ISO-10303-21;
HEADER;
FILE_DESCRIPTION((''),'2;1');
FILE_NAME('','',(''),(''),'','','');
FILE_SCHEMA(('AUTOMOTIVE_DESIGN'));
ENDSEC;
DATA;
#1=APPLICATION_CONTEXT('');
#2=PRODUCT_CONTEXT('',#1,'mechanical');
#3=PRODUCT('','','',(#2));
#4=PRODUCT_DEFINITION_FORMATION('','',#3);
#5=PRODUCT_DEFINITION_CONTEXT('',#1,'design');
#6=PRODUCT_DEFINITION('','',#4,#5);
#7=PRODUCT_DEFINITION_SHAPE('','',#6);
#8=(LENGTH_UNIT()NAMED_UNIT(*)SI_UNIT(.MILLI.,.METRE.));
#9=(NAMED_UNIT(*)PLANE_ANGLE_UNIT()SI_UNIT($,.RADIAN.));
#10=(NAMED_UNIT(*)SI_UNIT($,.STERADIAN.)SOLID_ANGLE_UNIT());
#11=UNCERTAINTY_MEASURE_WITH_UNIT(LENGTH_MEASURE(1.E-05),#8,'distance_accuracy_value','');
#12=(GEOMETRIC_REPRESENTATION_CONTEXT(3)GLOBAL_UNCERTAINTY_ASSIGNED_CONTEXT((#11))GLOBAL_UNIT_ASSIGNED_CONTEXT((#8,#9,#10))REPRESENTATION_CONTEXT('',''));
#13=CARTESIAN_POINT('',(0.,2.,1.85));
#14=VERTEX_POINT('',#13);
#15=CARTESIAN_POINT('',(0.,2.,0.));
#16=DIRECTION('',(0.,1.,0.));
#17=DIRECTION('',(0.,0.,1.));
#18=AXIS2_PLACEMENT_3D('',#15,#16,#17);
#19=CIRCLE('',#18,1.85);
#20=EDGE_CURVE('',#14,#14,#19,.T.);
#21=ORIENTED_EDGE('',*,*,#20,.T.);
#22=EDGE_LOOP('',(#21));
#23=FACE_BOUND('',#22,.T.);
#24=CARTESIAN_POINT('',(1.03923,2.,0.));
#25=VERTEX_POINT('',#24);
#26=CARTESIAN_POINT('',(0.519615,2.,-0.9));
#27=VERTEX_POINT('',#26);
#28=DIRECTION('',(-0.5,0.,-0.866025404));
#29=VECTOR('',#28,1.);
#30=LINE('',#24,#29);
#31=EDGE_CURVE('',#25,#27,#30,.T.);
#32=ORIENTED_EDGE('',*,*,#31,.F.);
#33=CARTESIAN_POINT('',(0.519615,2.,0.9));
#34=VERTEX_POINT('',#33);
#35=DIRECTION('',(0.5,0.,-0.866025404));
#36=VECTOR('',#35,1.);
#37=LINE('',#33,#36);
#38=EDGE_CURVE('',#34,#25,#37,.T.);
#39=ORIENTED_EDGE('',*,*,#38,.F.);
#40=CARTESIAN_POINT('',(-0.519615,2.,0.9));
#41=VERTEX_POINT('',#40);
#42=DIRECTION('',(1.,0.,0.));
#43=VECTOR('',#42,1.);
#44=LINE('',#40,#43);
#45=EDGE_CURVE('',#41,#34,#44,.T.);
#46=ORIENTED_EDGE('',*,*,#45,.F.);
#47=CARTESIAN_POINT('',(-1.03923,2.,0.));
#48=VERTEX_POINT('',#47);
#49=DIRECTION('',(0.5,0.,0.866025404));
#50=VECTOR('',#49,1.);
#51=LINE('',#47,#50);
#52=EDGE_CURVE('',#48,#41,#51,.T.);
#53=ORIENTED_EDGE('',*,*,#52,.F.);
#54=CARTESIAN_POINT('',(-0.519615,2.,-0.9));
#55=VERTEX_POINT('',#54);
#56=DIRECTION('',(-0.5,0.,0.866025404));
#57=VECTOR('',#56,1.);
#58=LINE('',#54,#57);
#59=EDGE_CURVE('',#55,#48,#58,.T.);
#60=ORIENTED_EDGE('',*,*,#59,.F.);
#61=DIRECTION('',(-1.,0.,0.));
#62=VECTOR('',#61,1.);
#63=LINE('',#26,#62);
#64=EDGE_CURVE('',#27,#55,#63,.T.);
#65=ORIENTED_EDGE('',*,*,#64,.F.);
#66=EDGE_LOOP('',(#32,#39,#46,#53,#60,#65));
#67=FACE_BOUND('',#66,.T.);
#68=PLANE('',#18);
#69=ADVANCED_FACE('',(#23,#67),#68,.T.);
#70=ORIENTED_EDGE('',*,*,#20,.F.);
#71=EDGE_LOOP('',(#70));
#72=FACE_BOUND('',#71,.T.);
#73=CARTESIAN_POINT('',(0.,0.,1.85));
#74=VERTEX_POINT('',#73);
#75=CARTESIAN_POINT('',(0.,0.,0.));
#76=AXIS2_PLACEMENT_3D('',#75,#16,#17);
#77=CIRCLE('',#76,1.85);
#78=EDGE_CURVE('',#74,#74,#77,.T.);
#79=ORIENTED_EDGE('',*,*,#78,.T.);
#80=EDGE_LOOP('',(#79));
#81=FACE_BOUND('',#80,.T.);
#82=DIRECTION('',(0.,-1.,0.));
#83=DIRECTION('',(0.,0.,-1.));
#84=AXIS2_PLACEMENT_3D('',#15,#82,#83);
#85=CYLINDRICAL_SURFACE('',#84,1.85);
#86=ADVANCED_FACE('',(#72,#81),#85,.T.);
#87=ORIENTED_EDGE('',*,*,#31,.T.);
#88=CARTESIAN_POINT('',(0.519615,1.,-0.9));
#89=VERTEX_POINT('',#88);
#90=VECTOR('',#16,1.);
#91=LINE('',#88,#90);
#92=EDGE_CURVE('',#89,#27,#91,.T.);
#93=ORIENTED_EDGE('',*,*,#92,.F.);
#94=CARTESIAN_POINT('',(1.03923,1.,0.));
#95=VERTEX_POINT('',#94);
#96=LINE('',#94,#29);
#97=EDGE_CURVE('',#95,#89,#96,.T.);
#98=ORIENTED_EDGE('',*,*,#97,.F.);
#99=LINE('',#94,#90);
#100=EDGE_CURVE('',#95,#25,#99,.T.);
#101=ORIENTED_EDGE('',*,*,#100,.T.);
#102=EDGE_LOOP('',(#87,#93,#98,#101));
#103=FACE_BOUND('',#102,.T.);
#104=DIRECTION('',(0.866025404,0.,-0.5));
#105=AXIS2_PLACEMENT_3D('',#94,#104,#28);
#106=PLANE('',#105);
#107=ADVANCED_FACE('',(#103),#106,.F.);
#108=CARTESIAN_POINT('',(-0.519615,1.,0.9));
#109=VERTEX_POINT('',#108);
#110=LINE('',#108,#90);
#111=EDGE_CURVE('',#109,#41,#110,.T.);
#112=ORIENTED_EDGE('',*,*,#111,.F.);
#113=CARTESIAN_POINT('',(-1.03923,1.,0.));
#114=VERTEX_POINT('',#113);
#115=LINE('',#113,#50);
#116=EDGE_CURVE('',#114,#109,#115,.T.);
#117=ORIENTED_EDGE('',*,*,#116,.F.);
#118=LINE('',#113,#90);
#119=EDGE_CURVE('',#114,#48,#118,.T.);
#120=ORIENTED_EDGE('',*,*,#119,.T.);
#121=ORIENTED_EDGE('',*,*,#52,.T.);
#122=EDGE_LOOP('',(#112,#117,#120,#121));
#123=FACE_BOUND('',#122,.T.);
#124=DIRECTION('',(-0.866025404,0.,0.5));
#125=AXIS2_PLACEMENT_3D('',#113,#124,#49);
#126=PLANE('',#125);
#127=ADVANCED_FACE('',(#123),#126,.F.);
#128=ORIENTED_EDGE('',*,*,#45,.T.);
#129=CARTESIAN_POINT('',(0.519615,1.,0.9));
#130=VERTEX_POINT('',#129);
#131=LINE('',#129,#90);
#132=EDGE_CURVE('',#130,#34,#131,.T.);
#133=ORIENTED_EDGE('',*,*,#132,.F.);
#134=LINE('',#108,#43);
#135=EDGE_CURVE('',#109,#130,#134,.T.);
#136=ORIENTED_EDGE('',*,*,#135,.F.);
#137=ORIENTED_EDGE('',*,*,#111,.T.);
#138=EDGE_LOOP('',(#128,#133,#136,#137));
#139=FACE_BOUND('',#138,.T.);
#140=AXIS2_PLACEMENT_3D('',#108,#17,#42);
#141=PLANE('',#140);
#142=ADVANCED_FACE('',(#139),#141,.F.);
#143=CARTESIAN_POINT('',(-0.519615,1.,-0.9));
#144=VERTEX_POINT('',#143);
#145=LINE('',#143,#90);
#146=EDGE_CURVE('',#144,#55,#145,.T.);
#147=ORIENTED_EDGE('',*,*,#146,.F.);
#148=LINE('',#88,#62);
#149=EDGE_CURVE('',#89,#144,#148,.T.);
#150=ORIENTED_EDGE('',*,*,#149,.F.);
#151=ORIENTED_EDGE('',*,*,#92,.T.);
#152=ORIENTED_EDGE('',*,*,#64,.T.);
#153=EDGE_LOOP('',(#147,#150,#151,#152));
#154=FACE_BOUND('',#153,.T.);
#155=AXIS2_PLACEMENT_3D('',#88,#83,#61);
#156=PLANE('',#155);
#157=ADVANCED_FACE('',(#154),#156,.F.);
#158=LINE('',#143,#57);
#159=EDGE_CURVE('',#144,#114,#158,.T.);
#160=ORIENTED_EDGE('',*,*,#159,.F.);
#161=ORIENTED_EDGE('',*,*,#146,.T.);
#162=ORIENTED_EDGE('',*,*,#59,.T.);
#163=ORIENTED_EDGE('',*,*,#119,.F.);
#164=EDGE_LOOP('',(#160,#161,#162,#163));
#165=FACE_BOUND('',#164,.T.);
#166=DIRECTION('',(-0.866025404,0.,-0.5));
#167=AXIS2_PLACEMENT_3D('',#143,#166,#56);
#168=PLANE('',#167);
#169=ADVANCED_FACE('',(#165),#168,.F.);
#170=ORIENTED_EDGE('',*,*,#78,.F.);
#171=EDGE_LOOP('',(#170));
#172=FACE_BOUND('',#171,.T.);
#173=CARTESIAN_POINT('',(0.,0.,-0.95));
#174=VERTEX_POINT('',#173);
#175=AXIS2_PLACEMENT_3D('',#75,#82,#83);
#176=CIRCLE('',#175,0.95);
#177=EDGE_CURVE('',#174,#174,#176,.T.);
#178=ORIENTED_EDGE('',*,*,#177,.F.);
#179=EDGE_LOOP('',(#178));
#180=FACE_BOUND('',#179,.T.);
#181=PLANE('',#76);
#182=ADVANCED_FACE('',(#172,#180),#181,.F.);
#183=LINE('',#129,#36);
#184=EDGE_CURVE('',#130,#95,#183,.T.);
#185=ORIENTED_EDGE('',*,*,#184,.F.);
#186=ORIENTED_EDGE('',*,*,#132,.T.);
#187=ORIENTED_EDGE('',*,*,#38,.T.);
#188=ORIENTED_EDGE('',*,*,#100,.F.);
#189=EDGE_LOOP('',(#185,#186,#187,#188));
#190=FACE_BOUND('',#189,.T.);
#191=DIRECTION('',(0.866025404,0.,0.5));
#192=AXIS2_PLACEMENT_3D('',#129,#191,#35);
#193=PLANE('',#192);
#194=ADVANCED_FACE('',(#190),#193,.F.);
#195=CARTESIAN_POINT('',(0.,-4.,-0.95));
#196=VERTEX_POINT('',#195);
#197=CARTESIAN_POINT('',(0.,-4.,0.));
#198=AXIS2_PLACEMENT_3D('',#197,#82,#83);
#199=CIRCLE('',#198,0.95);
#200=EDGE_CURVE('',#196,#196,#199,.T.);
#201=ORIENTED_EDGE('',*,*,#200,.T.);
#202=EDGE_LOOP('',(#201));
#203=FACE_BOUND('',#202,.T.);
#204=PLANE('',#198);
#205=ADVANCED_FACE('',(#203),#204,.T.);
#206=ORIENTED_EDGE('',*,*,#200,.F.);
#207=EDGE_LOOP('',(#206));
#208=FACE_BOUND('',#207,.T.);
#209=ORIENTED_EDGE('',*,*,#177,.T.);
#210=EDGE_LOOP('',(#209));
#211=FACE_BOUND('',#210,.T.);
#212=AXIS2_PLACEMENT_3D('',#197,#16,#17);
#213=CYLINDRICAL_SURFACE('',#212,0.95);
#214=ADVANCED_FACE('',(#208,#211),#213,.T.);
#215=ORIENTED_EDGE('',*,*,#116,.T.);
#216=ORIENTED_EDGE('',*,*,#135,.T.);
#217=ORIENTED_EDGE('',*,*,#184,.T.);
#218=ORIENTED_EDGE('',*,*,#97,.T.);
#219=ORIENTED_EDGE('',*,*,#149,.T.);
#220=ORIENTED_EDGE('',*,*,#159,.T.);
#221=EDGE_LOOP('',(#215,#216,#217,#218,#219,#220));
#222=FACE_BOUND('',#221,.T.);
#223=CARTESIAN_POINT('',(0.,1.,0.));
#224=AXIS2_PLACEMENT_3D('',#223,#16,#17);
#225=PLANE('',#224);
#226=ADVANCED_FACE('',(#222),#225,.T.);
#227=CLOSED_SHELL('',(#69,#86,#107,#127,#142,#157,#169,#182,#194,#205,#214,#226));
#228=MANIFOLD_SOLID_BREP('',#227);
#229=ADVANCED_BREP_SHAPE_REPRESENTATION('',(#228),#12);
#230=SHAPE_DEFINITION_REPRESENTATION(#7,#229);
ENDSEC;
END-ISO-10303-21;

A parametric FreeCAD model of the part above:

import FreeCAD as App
import Part
import Sketcher
Q = App.Units.Quantity


def add_polygon(sketch, points):
    """Adds a closed chain of lines whose ends are joined by coincident constraints."""
    first, n = sketch.GeometryCount, len(points)
    for a, b in zip(points, points[1:] + points[:1]):
        sketch.addGeometry(Part.LineSegment(App.Vector(*a, 0), App.Vector(*b, 0)), False)
    for i in range(n):
        sketch.addConstraint(Sketcher.Constraint("Coincident", first + i, 2, first + (i + 1) % n, 1))

doc = App.newDocument("Part")
body = doc.addObject("PartDesign::Body", "Body")

sketch1 = doc.addObject("Sketcher::SketchObject", "Sketch")
body.addObject(sketch1)
sketch1.AttachmentSupport = (doc.XZ_Plane, [""])
sketch1.MapMode = "FlatFace"
sketch1.addGeometry(Part.Circle(App.Vector(0, 0, 0), App.Vector(0, 0, 1), 1.85), False)
sketch1.addConstraint([
    Sketcher.Constraint("Coincident", 0, 3, -1, 1),
    Sketcher.Constraint("Diameter", 0, Q("3.7 mm")),
])
pad1 = doc.addObject("PartDesign::Pad", "Pad")
body.addObject(pad1)
pad1.Profile = sketch1
pad1.Length = 2
pad1.Reversed = True

sketch2 = doc.addObject("Sketcher::SketchObject", "Sketch001")
body.addObject(sketch2)
sketch2.AttachmentSupport = (doc.XZ_Plane, [""])
sketch2.MapMode = "FlatFace"
sketch2.AttachmentOffset = App.Placement(App.Vector(0, 0, -2), App.Rotation())
add_polygon(sketch2, [(1.03923, 0), (0.519615, -0.9), (-0.519615, -0.9), (-1.03923, 0), (-0.519615, 0.9), (0.519615, 0.9)])
sketch2.addConstraint([
    Sketcher.Constraint("Horizontal", 1),
    Sketcher.Constraint("Horizontal", 4),
    Sketcher.Constraint("Symmetric", 0, 2, 3, 2, -1, 1),
    Sketcher.Constraint("Symmetric", 2, 2, 5, 2, -1, 1),
    Sketcher.Constraint("PointOnObject", 2, 2, -1),
    Sketcher.Constraint("Parallel", 2, 5),
    Sketcher.Constraint("Vertical", 1, 2, 3, 2),
    Sketcher.Constraint("Angle", 0, Q("-120 deg")),
    Sketcher.Constraint("DistanceY", 0, 2, -1, 1, Q("0.9 mm")),
    Sketcher.Constraint("DistanceX", 1, 2, 1, 1, Q("1.03923 mm")),
])
pocket1 = doc.addObject("PartDesign::Pocket", "Pocket")
body.addObject(pocket1)
pocket1.Profile = sketch2
pocket1.Length = 1
pocket1.Reversed = True

sketch3 = doc.addObject("Sketcher::SketchObject", "Sketch002")
body.addObject(sketch3)
sketch3.AttachmentSupport = (doc.XZ_Plane, [""])
sketch3.MapMode = "FlatFace"
sketch3.addGeometry(Part.Circle(App.Vector(0, 0, 0), App.Vector(0, 0, 1), 0.95), False)
sketch3.addConstraint([
    Sketcher.Constraint("Coincident", 0, 3, -1, 1),
    Sketcher.Constraint("Diameter", 0, Q("1.9 mm")),
])
pad2 = doc.addObject("PartDesign::Pad", "Pad001")
body.addObject(pad2)
pad2.Profile = sketch3
pad2.Length = 4

doc.recompute()
